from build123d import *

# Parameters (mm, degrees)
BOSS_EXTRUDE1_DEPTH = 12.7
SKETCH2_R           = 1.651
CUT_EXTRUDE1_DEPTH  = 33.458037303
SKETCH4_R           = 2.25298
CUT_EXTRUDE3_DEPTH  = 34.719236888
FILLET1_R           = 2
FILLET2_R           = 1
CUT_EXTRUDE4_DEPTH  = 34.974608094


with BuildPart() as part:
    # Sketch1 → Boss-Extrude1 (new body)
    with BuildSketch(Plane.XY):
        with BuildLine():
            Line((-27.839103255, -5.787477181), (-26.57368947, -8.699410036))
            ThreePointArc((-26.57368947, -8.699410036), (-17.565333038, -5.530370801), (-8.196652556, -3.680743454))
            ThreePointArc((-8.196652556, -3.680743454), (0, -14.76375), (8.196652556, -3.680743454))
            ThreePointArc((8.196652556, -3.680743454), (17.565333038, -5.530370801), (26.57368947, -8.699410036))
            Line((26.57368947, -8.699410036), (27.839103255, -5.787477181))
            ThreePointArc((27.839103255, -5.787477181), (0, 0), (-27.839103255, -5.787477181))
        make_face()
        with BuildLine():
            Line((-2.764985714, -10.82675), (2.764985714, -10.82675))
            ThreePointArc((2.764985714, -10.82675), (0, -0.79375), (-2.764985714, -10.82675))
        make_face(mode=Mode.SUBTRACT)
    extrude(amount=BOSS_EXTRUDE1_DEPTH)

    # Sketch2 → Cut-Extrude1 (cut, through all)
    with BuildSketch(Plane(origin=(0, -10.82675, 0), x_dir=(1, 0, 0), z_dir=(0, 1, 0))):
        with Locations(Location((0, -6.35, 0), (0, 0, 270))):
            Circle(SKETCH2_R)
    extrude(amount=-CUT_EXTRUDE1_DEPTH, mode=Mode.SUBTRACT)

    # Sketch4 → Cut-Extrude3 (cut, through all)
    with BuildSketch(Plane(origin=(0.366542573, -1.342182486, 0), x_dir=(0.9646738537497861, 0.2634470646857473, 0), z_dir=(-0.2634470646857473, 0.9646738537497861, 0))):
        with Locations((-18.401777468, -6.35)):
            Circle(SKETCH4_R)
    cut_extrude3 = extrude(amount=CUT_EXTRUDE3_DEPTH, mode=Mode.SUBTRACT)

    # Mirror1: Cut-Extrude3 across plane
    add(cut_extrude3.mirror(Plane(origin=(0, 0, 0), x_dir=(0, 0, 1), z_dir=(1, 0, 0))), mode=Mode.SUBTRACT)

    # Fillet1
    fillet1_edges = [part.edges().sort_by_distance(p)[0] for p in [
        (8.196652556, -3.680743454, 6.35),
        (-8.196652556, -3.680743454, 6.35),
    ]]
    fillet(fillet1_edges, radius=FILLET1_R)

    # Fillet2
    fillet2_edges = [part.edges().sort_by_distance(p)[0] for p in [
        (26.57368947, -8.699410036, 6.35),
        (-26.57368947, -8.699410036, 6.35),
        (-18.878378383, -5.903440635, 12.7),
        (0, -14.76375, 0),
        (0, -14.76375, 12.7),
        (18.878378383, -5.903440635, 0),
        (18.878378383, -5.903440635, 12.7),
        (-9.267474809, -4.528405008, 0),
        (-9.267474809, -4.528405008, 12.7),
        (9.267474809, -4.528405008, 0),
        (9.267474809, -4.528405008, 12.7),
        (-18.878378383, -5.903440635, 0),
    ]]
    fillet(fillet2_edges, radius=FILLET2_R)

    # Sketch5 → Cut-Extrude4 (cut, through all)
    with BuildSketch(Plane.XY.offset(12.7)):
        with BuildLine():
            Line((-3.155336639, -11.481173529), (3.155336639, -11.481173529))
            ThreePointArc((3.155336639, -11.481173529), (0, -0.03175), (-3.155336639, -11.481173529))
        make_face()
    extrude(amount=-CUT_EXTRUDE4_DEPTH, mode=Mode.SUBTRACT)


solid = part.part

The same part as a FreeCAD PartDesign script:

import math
import FreeCAD as App
import Part
import Sketcher
Q = App.Units.Quantity


def edges_at(feature, points):
    """Names of the edges that pass closest to the given points."""
    edges = feature.Shape.Edges
    near = lambda p: min(range(len(edges)), key=lambda i: edges[i].distToShape(Part.Vertex(*p))[0])
    return sorted({f"Edge{near(p) + 1}" for p in points})

doc = App.newDocument("Part")
params = doc.addObject("Spreadsheet::Sheet", "Params")
for row, (alias, value) in enumerate([
    ("sketch1_radius", "2.75 in"),
    ("sketch1_radius2", "2.625 in"),
    ("pad1_length", "0.5 in"),
    ("sketch2_diameter", "0.13 in"),
    ("fillet_radius", "2 mm"),
    ("fillet2_radius", "1 mm"),
], start=1):
    params.set(f"A{row}", alias)
    params.set(f"B{row}", "=" + value)
    params.setAlias(f"B{row}", alias)

body = doc.addObject("PartDesign::Body", "Body")

sketch1 = body.newObject("Sketcher::SketchObject", "Sketch")
sketch1.AttachmentSupport = (doc.getObject("XY_Plane"), [""])
sketch1.MapMode = "FlatFace"
sketch1.addGeometry([
    Part.LineSegment(App.Vector(-27.839103, -5.787477, 0), App.Vector(-26.573689, -8.69941, 0)),
    Part.ArcOfCircle(Part.Circle(App.Vector(0, -69.85, 0), App.Vector(0, 0, 1), 66.675), math.radians(97.061487), math.radians(113.487908)),
    Part.ArcOfCircle(Part.Circle(App.Vector(0, -6.19125, 0), App.Vector(0, 0, 1), 8.5725), math.radians(162.970992), math.radians(377.029008)),
    Part.ArcOfCircle(Part.Circle(App.Vector(0, -69.85, 0), App.Vector(0, 0, 1), 66.675), math.radians(66.512092), math.radians(82.938513)),
    Part.LineSegment(App.Vector(26.573689, -8.69941, 0), App.Vector(27.839103, -5.787477, 0)),
    Part.ArcOfCircle(Part.Circle(App.Vector(0, -69.85, 0), App.Vector(0, 0, 1), 69.85), math.radians(66.512092), math.radians(113.487908)),
    Part.LineSegment(App.Vector(2.764986, -10.82675, 0), App.Vector(-2.764986, -10.82675, 0)),
    Part.ArcOfCircle(Part.Circle(App.Vector(0, -6.19125, 0), App.Vector(0, 0, 1), 5.3975), math.radians(-59.184744), math.radians(239.184744)),
], False)
sketch1.addConstraint([
    Sketcher.Constraint("Coincident", 0, 2, 1, 2),
    Sketcher.Constraint("Coincident", 1, 1, 2, 1),
    Sketcher.Constraint("Coincident", 2, 2, 3, 2),
    Sketcher.Constraint("Coincident", 3, 1, 4, 1),
    Sketcher.Constraint("Coincident", 4, 2, 5, 1),
    Sketcher.Constraint("Coincident", 5, 2, 0, 1),
    Sketcher.Constraint("Coincident", 6, 1, 7, 1),
    Sketcher.Constraint("Coincident", 7, 2, 6, 2),
    Sketcher.Constraint("Horizontal", 6),
    Sketcher.Constraint("Coincident", 3, 3, 1, 3),
    Sketcher.Constraint("Coincident", 5, 3, 1, 3),
    Sketcher.Constraint("Coincident", 7, 3, 2, 3),
    Sketcher.Constraint("Equal", 1, 3),
    Sketcher.Constraint("Symmetric", 1, 1, 2, 2, -2),
    Sketcher.Constraint("Horizontal", 0, 2, 3, 1),
    Sketcher.Constraint("Horizontal", 4, 2, 5, 2),
    Sketcher.Constraint("Radius", 5, Q("2.75 in")),
    Sketcher.Constraint("Radius", 1, Q("2.625 in")),
    Sketcher.Constraint("Radius", 2, Q("0.3375 in")),
    Sketcher.Constraint("Radius", 7, Q("0.2125 in")),
    Sketcher.Constraint("DistanceY", 1, 3, -1, 1, Q("2.75 in")),
    Sketcher.Constraint("DistanceY", 6, 1, 2, 3, Q("0.1825 in")),
    Sketcher.Constraint("DistanceY", 2, 3, -1, 1, 6.19125),
    Sketcher.Constraint("DistanceX", 0, 2, -1, 1, 26.573689),
    Sketcher.Constraint("DistanceX", 2, 2, 4, 2, 19.642451),
])
sketch1.setExpression("Constraints[16]", "Params.sketch1_radius")
sketch1.setExpression("Constraints[17]", "Params.sketch1_radius2")
pad1 = body.newObject("PartDesign::Pad", "Pad")
pad1.Profile = sketch1
pad1.setExpression("Length", "Params.pad1_length")

sketch2 = body.newObject("Sketcher::SketchObject", "Sketch001")
sketch2.AttachmentSupport = (doc.getObject("XZ_Plane"), [""])
sketch2.MapMode = "FlatFace"
sketch2.AttachmentOffset = App.Placement(App.Vector(0, 0, 10.82675), App.Rotation())
sketch2.addGeometry(Part.Circle(App.Vector(0, 6.35, 0), App.Vector(0, 0, 1), 1.651), False)
sketch2.addConstraint([
    Sketcher.Constraint("PointOnObject", 0, 3, -2),
    Sketcher.Constraint("Diameter", 0, Q("0.13 in")),
    Sketcher.Constraint("DistanceY", -1, 1, 0, 3, Q("0.25 in")),
])
sketch2.setExpression("Constraints[1]", "Params.sketch2_diameter")
pocket1 = body.newObject("PartDesign::Pocket", "Pocket")
pocket1.Profile = sketch2
pocket1.Type = "ThroughAll"
pocket1.Reversed = True

sketch3 = body.newObject("Sketcher::SketchObject", "Sketch002")
sketch3.Placement = App.Placement(App.Vector(0.366543, -1.342182, 0), App.Rotation(App.Vector(0.964673854, 0.263447065, 0), App.Vector(0, 0, -1.000000001), App.Vector(-0.263447065, 0.964673854, 0), "ZXY"))
sketch3.addGeometry(Part.Circle(App.Vector(-18.401777, -6.35, 0), App.Vector(0, 0, 1), 2.25298), False)
sketch3.addConstraint([
    Sketcher.Constraint("Diameter", 0, Q("0.1774 in")),
    Sketcher.Constraint("DistanceY", 0, 3, -1, 1, Q("0.25 in")),
    Sketcher.Constraint("DistanceX", 0, 3, -1, 1, 18.401777),
])
pocket2 = body.newObject("PartDesign::Pocket", "Pocket001")
pocket2.Profile = sketch3
pocket2.Type = "ThroughAll"
pocket2.Reversed = True
doc.recompute()

mirrored = body.newObject("PartDesign::Mirrored", "Mirrored")
mirrored.Originals = [pocket2]
mirrored.MirrorPlane = (doc.getObject("YZ_Plane"), [""])
body.Tip = mirrored
doc.recompute()

fillet = body.newObject("PartDesign::Fillet", "Fillet")
fillet.Base = (mirrored, edges_at(mirrored, [(8.197, -3.681, 6.35), (-8.197, -3.681, 6.35)]))
fillet.setExpression("Radius", "Params.fillet_radius")
doc.recompute()

fillet2 = body.newObject("PartDesign::Fillet", "Fillet001")
fillet2.Base = (fillet, edges_at(fillet, [
    (26.574, -8.699, 6.35),
    (-26.574, -8.699, 6.35),
    (-18.878, -5.903, 12.7),
    (0, -14.764, 0),
    (0, -14.764, 12.7),
    (18.878, -5.903, 0),
    (18.878, -5.903, 12.7),
    (-9.267, -4.528, 0),
    (-9.267, -4.528, 12.7),
    (9.267, -4.528, 0),
    (9.267, -4.528, 12.7),
    (-18.878, -5.903, 0),
]))
fillet2.setExpression("Radius", "Params.fillet2_radius")

sketch4 = body.newObject("Sketcher::SketchObject", "Sketch003")
sketch4.AttachmentSupport = (doc.getObject("XY_Plane"), [""])
sketch4.MapMode = "FlatFace"
sketch4.AttachmentOffset = App.Placement(App.Vector(0, 0, 0.5 * 25.4), App.Rotation())
sketch4.addGeometry([
    Part.LineSegment(App.Vector(-3.155337, -11.481174, 0), App.Vector(3.155337, -11.481174, 0)),
    Part.ArcOfCircle(Part.Circle(App.Vector(0, -6.19125, 0), App.Vector(0, 0, 1), 6.1595), math.radians(-59.184744), math.radians(239.184744)),
], False)
sketch4.addConstraint([
    Sketcher.Constraint("Coincident", 0, 1, 1, 2),
    Sketcher.Constraint("Coincident", 1, 1, 0, 2),
    Sketcher.Constraint("Horizontal", 0),
    Sketcher.Constraint("PointOnObject", 1, 3, -2),
    Sketcher.Constraint("Radius", 1, Q("0.2425 in")),
    Sketcher.Constraint("DistanceX", 0, 1, 0, 2, 6.310673),
    Sketcher.Constraint("DistanceY", 1, 3, -1, 1, 6.19125),
])
pocket3 = body.newObject("PartDesign::Pocket", "Pocket002")
pocket3.Profile = sketch4
pocket3.Type = "ThroughAll"

doc.recompute()
